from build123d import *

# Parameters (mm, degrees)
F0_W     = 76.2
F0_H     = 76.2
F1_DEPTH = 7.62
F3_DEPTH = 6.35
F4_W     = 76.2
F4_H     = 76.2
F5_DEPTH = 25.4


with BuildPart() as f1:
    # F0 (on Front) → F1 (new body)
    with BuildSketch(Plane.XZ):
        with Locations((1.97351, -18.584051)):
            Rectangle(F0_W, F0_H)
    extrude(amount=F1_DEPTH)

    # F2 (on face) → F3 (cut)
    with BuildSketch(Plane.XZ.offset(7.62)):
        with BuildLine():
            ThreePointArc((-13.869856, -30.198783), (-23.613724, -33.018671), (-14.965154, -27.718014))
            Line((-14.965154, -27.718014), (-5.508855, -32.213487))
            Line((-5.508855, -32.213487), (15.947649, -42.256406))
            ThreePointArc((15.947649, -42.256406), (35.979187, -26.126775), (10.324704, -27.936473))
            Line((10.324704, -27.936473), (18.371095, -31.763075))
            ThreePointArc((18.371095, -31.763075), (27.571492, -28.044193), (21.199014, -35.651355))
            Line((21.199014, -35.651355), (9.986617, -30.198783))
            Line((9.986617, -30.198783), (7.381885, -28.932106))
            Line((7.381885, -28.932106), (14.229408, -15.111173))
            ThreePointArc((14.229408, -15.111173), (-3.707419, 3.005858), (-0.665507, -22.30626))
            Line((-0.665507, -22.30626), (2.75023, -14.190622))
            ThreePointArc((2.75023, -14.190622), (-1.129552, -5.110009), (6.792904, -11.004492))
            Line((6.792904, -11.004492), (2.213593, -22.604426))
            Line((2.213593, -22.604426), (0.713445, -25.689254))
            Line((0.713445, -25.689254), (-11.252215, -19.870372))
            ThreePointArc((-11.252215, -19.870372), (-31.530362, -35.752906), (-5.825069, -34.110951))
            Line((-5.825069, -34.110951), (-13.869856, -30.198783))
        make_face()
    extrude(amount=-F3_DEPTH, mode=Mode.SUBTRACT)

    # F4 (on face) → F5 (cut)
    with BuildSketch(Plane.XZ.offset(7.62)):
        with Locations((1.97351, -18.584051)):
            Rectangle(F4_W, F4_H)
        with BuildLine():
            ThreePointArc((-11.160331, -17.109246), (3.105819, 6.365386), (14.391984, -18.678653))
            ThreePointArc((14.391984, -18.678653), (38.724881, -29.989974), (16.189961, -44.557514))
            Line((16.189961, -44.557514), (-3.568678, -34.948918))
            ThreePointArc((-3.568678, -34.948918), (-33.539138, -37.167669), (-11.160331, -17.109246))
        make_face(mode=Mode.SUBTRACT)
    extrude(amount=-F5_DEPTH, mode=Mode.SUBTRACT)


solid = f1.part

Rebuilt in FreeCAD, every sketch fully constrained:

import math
import FreeCAD as App
import Part
import Sketcher
from FreeCAD import Vector
Q = App.Units.Quantity

doc = App.newDocument("Part")
body = doc.addObject("PartDesign::Body", "Body")

sketch1 = body.newObject("Sketcher::SketchObject", "Sketch")
sketch1.AttachmentSupport = (doc.getObject("XZ_Plane"), [""])
sketch1.MapMode = "FlatFace"
sketch1.addGeometry([
    Part.LineSegment(Vector(-36, 20, 0), Vector(-36, -57, 0)),
    Part.LineSegment(Vector(-36, -57, 0), Vector(40, -57, 0)),
    Part.LineSegment(Vector(40, -57, 0), Vector(40, 20, 0)),
    Part.LineSegment(Vector(40, 20, 0), Vector(-36, 20, 0)),
], False)
sketch1.addConstraint([
    Sketcher.Constraint("Coincident", 0, 2, 1, 1),
    Sketcher.Constraint("Coincident", 1, 2, 2, 1),
    Sketcher.Constraint("Coincident", 2, 2, 3, 1),
    Sketcher.Constraint("Coincident", 3, 2, 0, 1),
    Sketcher.Constraint("Vertical", 0),
    Sketcher.Constraint("Horizontal", 1),
    Sketcher.Constraint("Vertical", 2),
    Sketcher.Constraint("Horizontal", 3),
    Sketcher.Constraint("Equal", 3, 0),
    Sketcher.Constraint("DistanceX", 1, 1, 1, 2, Q("3 in")),
    Sketcher.Constraint("DistanceX", 0, 2, -1, 1, Q("36.12649 mm")),
    Sketcher.Constraint("DistanceY", 0, 2, -1, 1, Q("56.684051 mm")),
])
pad1 = body.newObject("PartDesign::Pad", "Pad")
pad1.Profile = sketch1
pad1.Length = Q("0.3 in")

sketch2 = body.newObject("Sketcher::SketchObject", "Sketch001")
sketch2.AttachmentSupport = (doc.getObject("XZ_Plane"), [""])
sketch2.MapMode = "FlatFace"
sketch2.AttachmentOffset = App.Placement(Vector(0, 0, 0.3 * 25.4), App.Rotation())
sketch2.addGeometry([
    Part.ArcOfCircle(Part.Circle(Vector(-18.9, -31, 0), Vector(0, 0, 1), 5.1), math.radians(39), math.radians(368)),
    Part.LineSegment(Vector(-15, -27.7, 0), Vector(-5.5, -32.2, 0)),
    Part.LineSegment(Vector(-5.5, -32.2, 0), Vector(15.9, -42.3, 0)),
    Part.ArcOfCircle(Part.Circle(Vector(23.4, -31.1, 0), Vector(0, 0, 1), 13.5), math.radians(-124), math.radians(167)),
    Part.LineSegment(Vector(10.3, -27.9, 0), Vector(18.4, -31.8, 0)),
    Part.ArcOfCircle(Part.Circle(Vector(23.4, -31.1, 0), Vector(0, 0, 1), 5.1), math.radians(-116), math.radians(188)),
    Part.LineSegment(Vector(21.2, -35.7, 0), Vector(10, -30.2, 0)),
    Part.LineSegment(Vector(10, -30.2, 0), Vector(7.4, -28.9, 0)),
    Part.LineSegment(Vector(7.4, -28.9, 0), Vector(14.2, -15.1, 0)),
    Part.ArcOfCircle(Part.Circle(Vector(2.2, -9.1, 0), Vector(0, 0, 1), 13.5), math.radians(-26), math.radians(258)),
    Part.LineSegment(Vector(-0.7, -22.3, 0), Vector(2.8, -14.2, 0)),
    Part.ArcOfCircle(Part.Circle(Vector(2, -9.1, 0), Vector(0, 0, 1), 5.1), math.radians(-22), math.radians(278)),
    Part.LineSegment(Vector(6.8, -11, 0), Vector(2.2, -22.6, 0)),
    Part.LineSegment(Vector(2.2, -22.6, 0), Vector(0.7, -25.7, 0)),
    Part.LineSegment(Vector(0.7, -25.7, 0), Vector(-11.3, -19.9, 0)),
    Part.ArcOfCircle(Part.Circle(Vector(-18.9, -31, 0), Vector(0, 0, 1), 13.5), math.radians(55), math.radians(346)),
    Part.LineSegment(Vector(-5.8, -34.1, 0), Vector(-13.9, -30.2, 0)),
], False)
sketch2.addConstraint([
    Sketcher.Constraint("Coincident", 0, 1, 1, 1),
    Sketcher.Constraint("Coincident", 1, 2, 2, 1),
    Sketcher.Constraint("Coincident", 2, 2, 3, 1),
    Sketcher.Constraint("Coincident", 3, 2, 4, 1),
    Sketcher.Constraint("Coincident", 4, 2, 5, 2),
    Sketcher.Constraint("Tangent", 5, 1, 6, 1),
    Sketcher.Constraint("Coincident", 6, 2, 7, 1),
    Sketcher.Constraint("Coincident", 7, 2, 8, 1),
    Sketcher.Constraint("Tangent", 8, 2, 9, 1),
    Sketcher.Constraint("Coincident", 9, 2, 10, 1),
    Sketcher.Constraint("Coincident", 10, 2, 11, 2),
    Sketcher.Constraint("Tangent", 11, 1, 12, 1),
    Sketcher.Constraint("Coincident", 12, 2, 13, 1),
    Sketcher.Constraint("Coincident", 13, 2, 14, 1),
    Sketcher.Constraint("Coincident", 14, 2, 15, 1),
    Sketcher.Constraint("Coincident", 15, 2, 16, 1),
    Sketcher.Constraint("Coincident", 16, 2, 0, 2),
    Sketcher.Constraint("Coincident", 5, 3, 3, 3),
    Sketcher.Constraint("Coincident", 15, 3, 0, 3),
    Sketcher.Constraint("Equal", 3, 9),
    Sketcher.Constraint("Equal", 5, 11),
    Sketcher.Constraint("Parallel", 6, 7),
    Sketcher.Constraint("Perpendicular", 7, 13),
    Sketcher.Constraint("Perpendicular", 13, 14),
    Sketcher.Constraint("Parallel", 14, 16),
    Sketcher.Constraint("Horizontal", 6, 2, 16, 2),
    Sketcher.Constraint("Radius", 3, Q("13.475999 mm")),
    Sketcher.Constraint("Radius", 0, Q("5.117779 mm")),
    Sketcher.Constraint("Radius", 15, Q("13.482291 mm")),
    Sketcher.Constraint("Radius", 5, Q("5.114113 mm")),
    Sketcher.Constraint("DistanceX", 2, 2, 5, 3, Q("0.2947998 in")),
    Sketcher.Constraint("DistanceY", 3, 3, 6, 2, Q("0.0336001 in")),
    Sketcher.Constraint("DistanceY", 0, 3, -1, 1, Q("30.951602 mm")),
    Sketcher.Constraint("DistanceY", 3, 3, 11, 3, Q("21.925602 mm")),
    Sketcher.Constraint("DistanceX", 0, 1, 1, 2, Q("9.456299 mm")),
    Sketcher.Constraint("DistanceY", 4, 2, 3, 2, Q("3.826602 mm")),
    Sketcher.Constraint("DistanceY", 3, 2, 8, 2, Q("12.8253 mm")),
    Sketcher.Constraint("DistanceY", 10, 2, 11, 3, Q("5.063999 mm")),
    Sketcher.Constraint("DistanceX", 9, 2, 12, 2, Q("2.8791 mm")),
    Sketcher.Constraint("DistanceX", 1, 2, 13, 2, Q("6.2223 mm")),
    Sketcher.Constraint("DistanceX", 16, 2, 1, 2, Q("8.361001 mm")),
    Sketcher.Constraint("Distance", 10, Q("8.80516 mm")),
    Sketcher.Constraint("Distance", 12, Q("12.471109 mm")),
    Sketcher.Constraint("Distance", 13, Q("3.430249 mm")),
    Sketcher.Constraint("DistanceX", -1, 1, 9, 3, Q("2.154192 mm")),
    Sketcher.Constraint("DistanceX", -1, 1, 11, 3, Q("2.036039 mm")),
    Sketcher.Constraint("DistanceX", -1, 1, 2, 2, Q("15.947649 mm")),
    Sketcher.Constraint("DistanceY", 9, 2, -1, 1, Q("22.30626 mm")),
    Sketcher.Constraint("DistanceY", 11, 1, -1, 1, Q("11.004492 mm")),
    Sketcher.Constraint("DistanceY", 14, 2, -1, 1, Q("19.870372 mm")),
    Sketcher.Constraint("DistanceY", 1, 2, 9, 3, Q("23.084929 mm")),
    Sketcher.Constraint("DistanceX", 3, 2, 3, 3, Q("13.110859 mm")),
])
pocket1 = body.newObject("PartDesign::Pocket", "Pocket")
pocket1.Profile = sketch2
pocket1.Length = Q("0.25 in")

sketch3 = body.newObject("Sketcher::SketchObject", "Sketch002")
sketch3.AttachmentSupport = (doc.getObject("XZ_Plane"), [""])
sketch3.MapMode = "FlatFace"
sketch3.AttachmentOffset = App.Placement(Vector(0, 0, 0.3 * 25.4), App.Rotation())
sketch3.addGeometry([
    Part.LineSegment(Vector(-36, 20, 0), Vector(-36, -57, 0)),
    Part.LineSegment(Vector(-36, -57, 0), Vector(40, -57, 0)),
    Part.LineSegment(Vector(40, -57, 0), Vector(40, 20, 0)),
    Part.LineSegment(Vector(40, 20, 0), Vector(-36, 20, 0)),
    Part.ArcOfCircle(Part.Circle(Vector(-19, -31, 0), Vector(0, 0, 1), 16), math.radians(61), math.radians(345)),
    Part.ArcOfCircle(Part.Circle(Vector(2, -9, 0), Vector(0, 0, 1), 16), math.radians(-38), math.radians(211)),
    Part.ArcOfCircle(Part.Circle(Vector(23, -31, 0), Vector(0, 0, 1), 15), math.radians(-118), math.radians(126)),
    Part.LineSegment(Vector(16, -45, 0), Vector(-4, -35, 0)),
], False)
sketch3.addConstraint([
    Sketcher.Constraint("Coincident", 0, 2, 1, 1),
    Sketcher.Constraint("Coincident", 1, 2, 2, 1),
    Sketcher.Constraint("Coincident", 2, 2, 3, 1),
    Sketcher.Constraint("Coincident", 3, 2, 0, 1),
    Sketcher.Constraint("Coincident", 4, 1, 5, 2),
    Sketcher.Constraint("Coincident", 5, 1, 6, 2),
    Sketcher.Constraint("Coincident", 6, 1, 7, 1),
    Sketcher.Constraint("Coincident", 7, 2, 4, 2),
    Sketcher.Constraint("Vertical", 0),
    Sketcher.Constraint("Horizontal", 1),
    Sketcher.Constraint("Vertical", 2),
    Sketcher.Constraint("Horizontal", 3),
    Sketcher.Constraint("Equal", 3, 0),
    Sketcher.Constraint("DistanceX", 1, 1, 1, 2, Q("3 in")),
    Sketcher.Constraint("Radius", 5, Q("15.52314 mm")),
    Sketcher.Constraint("DistanceX", -1, 1, 6, 1, Q("0.6374 in")),
    Sketcher.Constraint("Radius", 4, Q("15.874793 mm")),
    Sketcher.Constraint("Radius", 6, Q("15.326174 mm")),
    Sketcher.Constraint("DistanceY", 4, 3, -1, 1, Q("30.951601 mm")),
    Sketcher.Constraint("DistanceX", -1, 1, 5, 3, Q("2.154191 mm")),
    Sketcher.Constraint("DistanceX", 0, 2, -1, 1, Q("36.12649 mm")),
    Sketcher.Constraint("DistanceY", 0, 2, -1, 1, Q("56.684051 mm")),
    Sketcher.Constraint("DistanceX", 4, 1, -1, 1, Q("11.160331 mm")),
    Sketcher.Constraint("DistanceX", 4, 3, 4, 1, Q("7.771632 mm")),
    Sketcher.Constraint("DistanceY", 6, 3, 4, 1, Q("13.942978 mm")),
    Sketcher.Constraint("DistanceX", 5, 1, 6, 3, Q("9.04358 mm")),
    Sketcher.Constraint("DistanceY", 7, 2, 4, 1, Q("17.839672 mm")),
])
pocket2 = body.newObject("PartDesign::Pocket", "Pocket001")
pocket2.Profile = sketch3
pocket2.Length = Q("1 in")

doc.recompute()
